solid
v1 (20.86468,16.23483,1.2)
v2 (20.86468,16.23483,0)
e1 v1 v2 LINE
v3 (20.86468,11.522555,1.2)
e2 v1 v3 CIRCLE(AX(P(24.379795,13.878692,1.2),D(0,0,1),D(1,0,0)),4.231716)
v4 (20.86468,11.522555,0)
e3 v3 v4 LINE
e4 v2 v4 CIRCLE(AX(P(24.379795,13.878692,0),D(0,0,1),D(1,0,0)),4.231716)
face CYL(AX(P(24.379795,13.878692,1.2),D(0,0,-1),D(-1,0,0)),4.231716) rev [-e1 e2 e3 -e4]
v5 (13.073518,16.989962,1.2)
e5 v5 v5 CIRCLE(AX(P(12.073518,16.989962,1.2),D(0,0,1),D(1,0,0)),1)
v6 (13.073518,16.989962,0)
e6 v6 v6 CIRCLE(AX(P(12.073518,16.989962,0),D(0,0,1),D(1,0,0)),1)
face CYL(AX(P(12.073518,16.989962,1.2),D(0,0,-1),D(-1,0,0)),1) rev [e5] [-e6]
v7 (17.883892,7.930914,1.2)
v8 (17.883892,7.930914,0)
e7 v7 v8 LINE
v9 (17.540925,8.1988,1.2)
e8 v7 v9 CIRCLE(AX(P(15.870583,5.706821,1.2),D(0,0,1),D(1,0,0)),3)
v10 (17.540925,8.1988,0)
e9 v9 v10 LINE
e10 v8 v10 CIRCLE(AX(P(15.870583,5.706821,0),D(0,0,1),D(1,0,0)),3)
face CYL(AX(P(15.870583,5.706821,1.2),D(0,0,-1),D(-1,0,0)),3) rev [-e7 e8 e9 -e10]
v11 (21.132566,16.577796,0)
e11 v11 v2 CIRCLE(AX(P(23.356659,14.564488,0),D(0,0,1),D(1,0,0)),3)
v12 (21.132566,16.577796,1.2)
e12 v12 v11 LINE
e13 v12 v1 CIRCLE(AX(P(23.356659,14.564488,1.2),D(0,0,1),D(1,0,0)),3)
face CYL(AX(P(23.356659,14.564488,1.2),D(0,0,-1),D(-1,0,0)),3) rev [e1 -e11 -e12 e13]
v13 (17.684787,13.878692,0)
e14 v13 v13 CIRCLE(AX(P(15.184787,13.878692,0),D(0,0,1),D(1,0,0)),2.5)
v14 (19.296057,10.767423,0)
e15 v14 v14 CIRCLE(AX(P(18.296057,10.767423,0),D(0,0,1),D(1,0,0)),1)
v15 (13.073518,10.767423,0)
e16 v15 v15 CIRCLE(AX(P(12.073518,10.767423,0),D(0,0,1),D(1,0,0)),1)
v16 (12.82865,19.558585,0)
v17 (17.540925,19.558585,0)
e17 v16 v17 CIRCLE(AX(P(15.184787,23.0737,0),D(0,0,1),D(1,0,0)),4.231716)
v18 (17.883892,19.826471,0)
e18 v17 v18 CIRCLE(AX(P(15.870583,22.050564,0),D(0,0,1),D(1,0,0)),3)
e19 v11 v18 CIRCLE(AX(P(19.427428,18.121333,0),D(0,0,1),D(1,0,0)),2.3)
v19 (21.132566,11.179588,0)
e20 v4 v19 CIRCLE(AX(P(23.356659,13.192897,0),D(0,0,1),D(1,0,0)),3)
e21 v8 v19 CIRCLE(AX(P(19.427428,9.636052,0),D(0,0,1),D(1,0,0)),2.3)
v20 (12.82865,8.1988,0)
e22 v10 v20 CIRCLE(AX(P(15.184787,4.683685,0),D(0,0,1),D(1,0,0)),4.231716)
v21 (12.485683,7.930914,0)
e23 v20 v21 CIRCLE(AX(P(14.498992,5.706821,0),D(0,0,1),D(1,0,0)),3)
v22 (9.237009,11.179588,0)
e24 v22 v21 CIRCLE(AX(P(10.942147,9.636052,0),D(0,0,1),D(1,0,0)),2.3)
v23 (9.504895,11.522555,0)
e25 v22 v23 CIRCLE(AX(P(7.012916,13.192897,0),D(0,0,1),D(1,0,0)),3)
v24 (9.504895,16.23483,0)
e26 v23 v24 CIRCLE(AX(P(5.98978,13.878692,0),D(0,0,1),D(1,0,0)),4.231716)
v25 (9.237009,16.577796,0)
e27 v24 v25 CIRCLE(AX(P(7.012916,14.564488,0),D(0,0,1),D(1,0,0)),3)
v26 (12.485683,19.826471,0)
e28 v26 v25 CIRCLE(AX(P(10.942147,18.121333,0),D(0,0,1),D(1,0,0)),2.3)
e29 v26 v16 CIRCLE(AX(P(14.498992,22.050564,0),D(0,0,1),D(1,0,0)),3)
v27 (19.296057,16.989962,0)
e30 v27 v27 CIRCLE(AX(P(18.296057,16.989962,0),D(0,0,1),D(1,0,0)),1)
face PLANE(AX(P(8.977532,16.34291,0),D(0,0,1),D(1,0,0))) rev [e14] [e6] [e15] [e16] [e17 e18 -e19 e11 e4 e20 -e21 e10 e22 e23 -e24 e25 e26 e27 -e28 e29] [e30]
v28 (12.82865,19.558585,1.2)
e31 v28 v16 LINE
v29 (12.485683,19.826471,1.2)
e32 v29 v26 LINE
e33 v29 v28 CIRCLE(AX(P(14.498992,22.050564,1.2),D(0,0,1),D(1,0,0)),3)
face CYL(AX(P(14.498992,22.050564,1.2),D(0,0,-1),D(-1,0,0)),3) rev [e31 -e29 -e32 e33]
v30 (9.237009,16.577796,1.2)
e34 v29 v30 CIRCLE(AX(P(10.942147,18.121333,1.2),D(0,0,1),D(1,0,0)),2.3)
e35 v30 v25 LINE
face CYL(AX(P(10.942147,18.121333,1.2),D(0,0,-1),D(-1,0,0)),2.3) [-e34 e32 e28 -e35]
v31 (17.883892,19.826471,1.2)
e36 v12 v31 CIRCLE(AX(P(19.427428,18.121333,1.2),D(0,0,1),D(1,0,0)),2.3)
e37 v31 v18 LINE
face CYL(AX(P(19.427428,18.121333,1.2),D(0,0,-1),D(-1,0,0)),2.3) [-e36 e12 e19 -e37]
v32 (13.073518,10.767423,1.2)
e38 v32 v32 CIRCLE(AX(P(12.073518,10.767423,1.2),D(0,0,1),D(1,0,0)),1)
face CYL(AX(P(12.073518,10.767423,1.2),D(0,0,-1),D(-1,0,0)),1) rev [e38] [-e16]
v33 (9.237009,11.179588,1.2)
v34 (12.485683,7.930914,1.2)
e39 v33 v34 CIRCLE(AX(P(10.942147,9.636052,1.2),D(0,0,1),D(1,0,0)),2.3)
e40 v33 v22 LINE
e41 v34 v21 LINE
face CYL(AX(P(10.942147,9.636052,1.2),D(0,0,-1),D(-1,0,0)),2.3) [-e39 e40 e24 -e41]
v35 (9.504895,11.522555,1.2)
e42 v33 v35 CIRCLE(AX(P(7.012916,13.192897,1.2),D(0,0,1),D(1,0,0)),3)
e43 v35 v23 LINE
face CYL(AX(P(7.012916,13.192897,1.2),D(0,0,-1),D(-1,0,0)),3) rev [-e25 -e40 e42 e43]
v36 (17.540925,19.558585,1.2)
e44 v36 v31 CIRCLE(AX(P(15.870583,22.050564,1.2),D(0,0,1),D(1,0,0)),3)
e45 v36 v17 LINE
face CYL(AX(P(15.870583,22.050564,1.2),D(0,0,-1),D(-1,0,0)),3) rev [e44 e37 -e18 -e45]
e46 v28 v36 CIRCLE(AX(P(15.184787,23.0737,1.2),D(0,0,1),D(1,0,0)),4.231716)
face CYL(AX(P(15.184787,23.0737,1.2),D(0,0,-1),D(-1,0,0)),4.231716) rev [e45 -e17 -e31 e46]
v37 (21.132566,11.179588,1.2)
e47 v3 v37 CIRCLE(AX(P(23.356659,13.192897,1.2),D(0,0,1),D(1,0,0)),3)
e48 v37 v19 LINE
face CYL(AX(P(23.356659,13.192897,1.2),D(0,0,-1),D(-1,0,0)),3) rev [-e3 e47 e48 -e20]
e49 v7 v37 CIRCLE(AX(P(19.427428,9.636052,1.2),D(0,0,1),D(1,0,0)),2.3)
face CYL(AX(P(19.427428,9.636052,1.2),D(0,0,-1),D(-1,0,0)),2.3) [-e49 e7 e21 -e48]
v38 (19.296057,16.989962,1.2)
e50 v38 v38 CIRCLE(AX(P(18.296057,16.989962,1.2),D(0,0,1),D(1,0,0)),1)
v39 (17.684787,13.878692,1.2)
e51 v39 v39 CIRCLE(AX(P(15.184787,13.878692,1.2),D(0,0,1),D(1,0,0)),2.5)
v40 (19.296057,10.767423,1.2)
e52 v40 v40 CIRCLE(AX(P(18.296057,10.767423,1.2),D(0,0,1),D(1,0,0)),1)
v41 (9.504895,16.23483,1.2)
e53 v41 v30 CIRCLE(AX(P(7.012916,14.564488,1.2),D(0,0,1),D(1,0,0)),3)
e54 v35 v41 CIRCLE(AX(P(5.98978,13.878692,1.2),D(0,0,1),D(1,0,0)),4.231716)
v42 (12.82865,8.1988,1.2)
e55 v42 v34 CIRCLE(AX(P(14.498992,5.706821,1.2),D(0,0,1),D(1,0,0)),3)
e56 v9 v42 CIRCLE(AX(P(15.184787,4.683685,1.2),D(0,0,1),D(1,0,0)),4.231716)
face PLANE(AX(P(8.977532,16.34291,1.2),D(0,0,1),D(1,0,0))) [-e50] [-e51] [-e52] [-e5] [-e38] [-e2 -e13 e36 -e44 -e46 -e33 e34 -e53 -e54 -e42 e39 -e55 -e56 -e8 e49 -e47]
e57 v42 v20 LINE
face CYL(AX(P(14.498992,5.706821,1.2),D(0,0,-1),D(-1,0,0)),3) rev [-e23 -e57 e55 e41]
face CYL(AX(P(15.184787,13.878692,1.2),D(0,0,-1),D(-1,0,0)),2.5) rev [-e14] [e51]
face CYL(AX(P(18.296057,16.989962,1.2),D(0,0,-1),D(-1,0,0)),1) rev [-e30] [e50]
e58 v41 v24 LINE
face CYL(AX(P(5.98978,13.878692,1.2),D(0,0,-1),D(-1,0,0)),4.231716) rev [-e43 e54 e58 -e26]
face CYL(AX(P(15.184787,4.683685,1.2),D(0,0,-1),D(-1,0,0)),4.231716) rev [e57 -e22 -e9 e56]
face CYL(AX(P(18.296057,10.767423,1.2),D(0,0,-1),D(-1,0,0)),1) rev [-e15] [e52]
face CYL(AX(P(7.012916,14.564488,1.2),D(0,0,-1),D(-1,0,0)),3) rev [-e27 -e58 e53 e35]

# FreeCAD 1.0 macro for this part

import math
import FreeCAD as App
import Part
import Sketcher
Q = App.Units.Quantity

doc = App.newDocument("Part")
body = doc.addObject("PartDesign::Body", "Body")

sketch1 = body.newObject("Sketcher::SketchObject", "Sketch")
sketch1.AttachmentSupport = (doc.getObject("XY_Plane"), [""])
sketch1.MapMode = "FlatFace"
sketch1.addGeometry([
    Part.ArcOfCircle(Part.Circle(App.Vector(14.498992, 22.050564, 0), App.Vector(0, 0, 1), 3), math.radians(-132.152241), math.radians(-123.833452)),
    Part.ArcOfCircle(Part.Circle(App.Vector(10.942147, 18.121333, 0), App.Vector(0, 0, 1), 2.3), math.radians(47.847759), math.radians(222.152241)),
    Part.ArcOfCircle(Part.Circle(App.Vector(7.012916, 14.564488, 0), App.Vector(0, 0, 1), 3), math.radians(33.833452), math.radians(42.152241)),
    Part.ArcOfCircle(Part.Circle(App.Vector(5.98978, 13.878692, 0), App.Vector(0, 0, 1), 4.231716), math.radians(-33.833452), math.radians(33.833452)),
    Part.ArcOfCircle(Part.Circle(App.Vector(7.012916, 13.192897, 0), App.Vector(0, 0, 1), 3), math.radians(-42.152241), math.radians(-33.833452)),
    Part.ArcOfCircle(Part.Circle(App.Vector(10.942147, 9.636052, 0), App.Vector(0, 0, 1), 2.3), math.radians(137.847759), math.radians(312.152241)),
    Part.ArcOfCircle(Part.Circle(App.Vector(14.498992, 5.706821, 0), App.Vector(0, 0, 1), 3), math.radians(123.833452), math.radians(132.152241)),
    Part.ArcOfCircle(Part.Circle(App.Vector(15.184787, 4.683685, 0), App.Vector(0, 0, 1), 4.231716), math.radians(56.166548), math.radians(123.833452)),
    Part.ArcOfCircle(Part.Circle(App.Vector(15.870583, 5.706821, 0), App.Vector(0, 0, 1), 3), math.radians(47.847759), math.radians(56.166548)),
    Part.ArcOfCircle(Part.Circle(App.Vector(19.427428, 9.636052, 0), App.Vector(0, 0, 1), 2.3), math.radians(-132.152241), math.radians(42.152241)),
    Part.ArcOfCircle(Part.Circle(App.Vector(23.356659, 13.192897, 0), App.Vector(0, 0, 1), 3), math.radians(-146.166548), math.radians(-137.847759)),
    Part.ArcOfCircle(Part.Circle(App.Vector(24.379795, 13.878692, 0), App.Vector(0, 0, 1), 4.231716), math.radians(146.166548), math.radians(213.833452)),
    Part.ArcOfCircle(Part.Circle(App.Vector(23.356659, 14.564488, 0), App.Vector(0, 0, 1), 3), math.radians(137.847759), math.radians(146.166548)),
    Part.ArcOfCircle(Part.Circle(App.Vector(19.427428, 18.121333, 0), App.Vector(0, 0, 1), 2.3), math.radians(-42.152241), math.radians(132.152241)),
    Part.ArcOfCircle(Part.Circle(App.Vector(15.870583, 22.050563, 0), App.Vector(0, 0, 1), 3), math.radians(-56.166548), math.radians(-47.847759)),
    Part.ArcOfCircle(Part.Circle(App.Vector(15.184787, 23.0737, 0), App.Vector(0, 0, 1), 4.231716), math.radians(-123.833452), math.radians(-56.166548)),
    Part.Circle(App.Vector(18.296057, 10.767423, 0), App.Vector(0, 0, 1), 1),
    Part.Circle(App.Vector(12.073518, 10.767423, 0), App.Vector(0, 0, 1), 1),
    Part.Circle(App.Vector(15.184787, 13.878692, 0), App.Vector(0, 0, 1), 2.5),
    Part.Circle(App.Vector(18.296057, 16.989962, 0), App.Vector(0, 0, 1), 1),
    Part.Circle(App.Vector(12.073518, 16.989962, 0), App.Vector(0, 0, 1), 1),
], False)
sketch1.addConstraint([
    Sketcher.Constraint("Coincident", 0, 1, 1, 1),
    Sketcher.Constraint("Coincident", 1, 2, 2, 2),
    Sketcher.Constraint("Coincident", 2, 1, 3, 2),
    Sketcher.Constraint("Coincident", 3, 1, 4, 2),
    Sketcher.Constraint("Coincident", 4, 1, 5, 1),
    Sketcher.Constraint("Coincident", 5, 2, 6, 2),
    Sketcher.Constraint("Coincident", 6, 1, 7, 2),
    Sketcher.Constraint("Coincident", 7, 1, 8, 2),
    Sketcher.Constraint("Coincident", 8, 1, 9, 1),
    Sketcher.Constraint("Coincident", 9, 2, 10, 2),
    Sketcher.Constraint("Coincident", 10, 1, 11, 2),
    Sketcher.Constraint("Coincident", 11, 1, 12, 2),
    Sketcher.Constraint("Coincident", 12, 1, 13, 1),
    Sketcher.Constraint("Coincident", 13, 2, 14, 2),
    Sketcher.Constraint("Coincident", 14, 1, 15, 2),
    Sketcher.Constraint("Coincident", 15, 1, 0, 2),
    Sketcher.Constraint("Diameter", 16, Q("2 mm")),
    Sketcher.Constraint("Diameter", 17, Q("2 mm")),
    Sketcher.Constraint("Diameter", 18, Q("5 mm")),
    Sketcher.Constraint("Diameter", 19, Q("2 mm")),
    Sketcher.Constraint("Diameter", 20, Q("2 mm")),
    Sketcher.Constraint("Radius", 0, Q("3 mm")),
    Sketcher.Constraint("Radius", 2, Q("3 mm")),
    Sketcher.Constraint("Radius", 4, Q("3 mm")),
    Sketcher.Constraint("Radius", 6, Q("3 mm")),
    Sketcher.Constraint("Radius", 8, Q("3 mm")),
    Sketcher.Constraint("Radius", 10, Q("3 mm")),
    Sketcher.Constraint("Radius", 12, Q("3 mm")),
    Sketcher.Constraint("Radius", 14, Q("3 mm")),
    Sketcher.Constraint("Radius", 1, Q("2.3 mm")),
    Sketcher.Constraint("Radius", 5, Q("2.3 mm")),
    Sketcher.Constraint("Radius", 9, Q("2.3 mm")),
    Sketcher.Constraint("Radius", 13, Q("2.3 mm")),
    Sketcher.Constraint("Radius", 3, Q("4.231716 mm")),
    Sketcher.Constraint("Radius", 7, Q("4.231716 mm")),
    Sketcher.Constraint("Radius", 11, Q("4.231716 mm")),
    Sketcher.Constraint("Radius", 15, Q("4.231716 mm")),
    Sketcher.Constraint("DistanceY", -1, 1, 15, 3, Q("23.0737 mm")),
    Sketcher.Constraint("DistanceY", -1, 1, 6, 1, Q("8.1988 mm")),
    Sketcher.Constraint("DistanceY", -1, 1, 7, 1, Q("8.1988 mm")),
    Sketcher.Constraint("DistanceY", 8, 3, 16, 3, Q("5.060601 mm")),
    Sketcher.Constraint("DistanceX", 16, 3, 10, 3, Q("5.060601 mm")),
    Sketcher.Constraint("DistanceX", 16, 3, 12, 3, Q("5.060601 mm")),
    Sketcher.Constraint("DistanceY", 6, 3, 16, 3, Q("5.060601 mm")),
    Sketcher.Constraint("DistanceX", 4, 3, 17, 3, Q("5.060601 mm")),
    Sketcher.Constraint("DistanceY", 6, 3, 17, 3, Q("5.060601 mm")),
    Sketcher.Constraint("DistanceY", 19, 3, 14, 3, Q("5.060601 mm")),
    Sketcher.Constraint("DistanceX", 19, 3, 12, 3, Q("5.060601 mm")),
    Sketcher.Constraint("DistanceX", 2, 3, 20, 3, Q("5.060601 mm")),
    Sketcher.Constraint("DistanceY", 20, 3, 0, 3, Q("5.060601 mm")),
    Sketcher.Constraint("DistanceX", 0, 1, 14, 3, Q("3.3849 mm")),
    Sketcher.Constraint("DistanceY", 4, 3, 1, 2, Q("3.3849 mm")),
    Sketcher.Constraint("DistanceY", 4, 1, 2, 3, Q("3.3849 mm")),
    Sketcher.Constraint("DistanceX", 5, 2, 8, 3, Q("3.3849 mm")),
    Sketcher.Constraint("DistanceX", 6, 3, 8, 1, Q("3.3849 mm")),
    Sketcher.Constraint("DistanceY", 9, 2, 12, 3, Q("3.3849 mm")),
    Sketcher.Constraint("DistanceY", 10, 3, 12, 1, Q("3.3849 mm")),
    Sketcher.Constraint("DistanceX", 0, 3, 13, 2, Q("3.3849 mm")),
    Sketcher.Constraint("DistanceX", -1, 1, 0, 3, Q("14.498992 mm")),
    Sketcher.Constraint("DistanceX", -1, 1, 3, 3, Q("5.98978 mm")),
    Sketcher.Constraint("DistanceY", -1, 1, 5, 3, Q("9.636052 mm")),
    Sketcher.Constraint("DistanceX", -1, 1, 6, 3, Q("14.498992 mm")),
    Sketcher.Constraint("DistanceY", -1, 1, 6, 3, Q("5.706821 mm")),
    Sketcher.Constraint("DistanceX", -1, 1, 9, 3, Q("19.427428 mm")),
    Sketcher.Constraint("DistanceY", -1, 1, 9, 3, Q("9.636052 mm")),
    Sketcher.Constraint("DistanceX", -1, 1, 10, 3, Q("23.356659 mm")),
    Sketcher.Constraint("DistanceX", -1, 1, 13, 3, Q("19.427428 mm")),
    Sketcher.Constraint("DistanceY", -1, 1, 0, 1, Q("19.826471 mm")),
    Sketcher.Constraint("DistanceX", -1, 1, 1, 2, Q("9.237009 mm")),
    Sketcher.Constraint("DistanceY", -1, 1, 2, 1, Q("16.23483 mm")),
    Sketcher.Constraint("DistanceX", -1, 1, 4, 1, Q("9.237009 mm")),
    Sketcher.Constraint("DistanceY", -1, 1, 9, 2, Q("11.179588 mm")),
    Sketcher.Constraint("DistanceX", -1, 1, 10, 1, Q("20.86468 mm")),
    Sketcher.Constraint("DistanceX", -1, 1, 11, 1, Q("20.86468 mm")),
    Sketcher.Constraint("DistanceX", -1, 1, 15, 1, Q("12.82865 mm")),
    Sketcher.Constraint("DistanceX", 18, 3, 16, 3, Q("3.11127 mm")),
    Sketcher.Constraint("DistanceY", 16, 3, 18, 3, Q("3.11127 mm")),
    Sketcher.Constraint("DistanceX", 3, 1, 5, 3, Q("1.437252 mm")),
    Sketcher.Constraint("DistanceY", 13, 3, 14, 1, Q("1.437252 mm")),
])
pad1 = body.newObject("PartDesign::Pad", "Pad")
pad1.Profile = sketch1
pad1.Length = 1.2

doc.recompute()
